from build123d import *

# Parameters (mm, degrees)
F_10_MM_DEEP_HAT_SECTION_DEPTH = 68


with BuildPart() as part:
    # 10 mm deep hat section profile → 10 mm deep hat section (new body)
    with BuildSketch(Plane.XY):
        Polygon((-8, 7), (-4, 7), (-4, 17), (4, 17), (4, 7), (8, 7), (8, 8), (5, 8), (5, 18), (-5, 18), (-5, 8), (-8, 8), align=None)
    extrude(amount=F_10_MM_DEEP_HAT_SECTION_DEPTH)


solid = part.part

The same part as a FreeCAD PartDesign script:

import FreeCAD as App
import Part
import Sketcher
from FreeCAD import Vector
Q = App.Units.Quantity

doc = App.newDocument("Part")
body = doc.addObject("PartDesign::Body", "Body")

# Sketch on XY plane
sketch1 = body.newObject("Sketcher::SketchObject", "Sketch")
sketch1.AttachmentSupport = (doc.getObject("XY_Plane"), [""])
sketch1.MapMode = "FlatFace"
sketch1.addGeometry(Part.LineSegment(Vector(-8, 7, 0), Vector(-4, 7, 0)), False)
sketch1.addGeometry(Part.LineSegment(Vector(-4, 7, 0), Vector(-4, 17, 0)), False)
sketch1.addGeometry(Part.LineSegment(Vector(-4, 17, 0), Vector(4, 17, 0)), False)
sketch1.addGeometry(Part.LineSegment(Vector(4, 17, 0), Vector(4, 7, 0)), False)
sketch1.addGeometry(Part.LineSegment(Vector(4, 7, 0), Vector(8, 7, 0)), False)
sketch1.addGeometry(Part.LineSegment(Vector(8, 7, 0), Vector(8, 8, 0)), False)
sketch1.addGeometry(Part.LineSegment(Vector(8, 8, 0), Vector(5, 8, 0)), False)
sketch1.addGeometry(Part.LineSegment(Vector(5, 8, 0), Vector(5, 18, 0)), False)
sketch1.addGeometry(Part.LineSegment(Vector(5, 18, 0), Vector(-5, 18, 0)), False)
sketch1.addGeometry(Part.LineSegment(Vector(-5, 18, 0), Vector(-5, 8, 0)), False)
sketch1.addGeometry(Part.LineSegment(Vector(-5, 8, 0), Vector(-8, 8, 0)), False)
sketch1.addGeometry(Part.LineSegment(Vector(-8, 8, 0), Vector(-8, 7, 0)), False)
sketch1.addConstraint(Sketcher.Constraint("Coincident", 0, 2, 1, 1))
sketch1.addConstraint(Sketcher.Constraint("Coincident", 1, 2, 2, 1))
sketch1.addConstraint(Sketcher.Constraint("Coincident", 2, 2, 3, 1))
sketch1.addConstraint(Sketcher.Constraint("Coincident", 3, 2, 4, 1))
sketch1.addConstraint(Sketcher.Constraint("Coincident", 4, 2, 5, 1))
sketch1.addConstraint(Sketcher.Constraint("Coincident", 5, 2, 6, 1))
sketch1.addConstraint(Sketcher.Constraint("Coincident", 6, 2, 7, 1))
sketch1.addConstraint(Sketcher.Constraint("Coincident", 7, 2, 8, 1))
sketch1.addConstraint(Sketcher.Constraint("Coincident", 8, 2, 9, 1))
sketch1.addConstraint(Sketcher.Constraint("Coincident", 9, 2, 10, 1))
sketch1.addConstraint(Sketcher.Constraint("Coincident", 10, 2, 11, 1))
sketch1.addConstraint(Sketcher.Constraint("Coincident", 11, 2, 0, 1))
sketch1.addConstraint(Sketcher.Constraint("Horizontal", 0))
sketch1.addConstraint(Sketcher.Constraint("Vertical", 1))
sketch1.addConstraint(Sketcher.Constraint("Horizontal", 2))
sketch1.addConstraint(Sketcher.Constraint("Vertical", 3))
sketch1.addConstraint(Sketcher.Constraint("Horizontal", 4))
sketch1.addConstraint(Sketcher.Constraint("Vertical", 5))
sketch1.addConstraint(Sketcher.Constraint("Horizontal", 6))
sketch1.addConstraint(Sketcher.Constraint("Vertical", 7))
sketch1.addConstraint(Sketcher.Constraint("Horizontal", 8))
sketch1.addConstraint(Sketcher.Constraint("Vertical", 9))
sketch1.addConstraint(Sketcher.Constraint("Horizontal", 10))
sketch1.addConstraint(Sketcher.Constraint("Vertical", 11))
sketch1.addConstraint(Sketcher.Constraint("Symmetric", 0, 2, 3, 2, -2))
sketch1.addConstraint(Sketcher.Constraint("Symmetric", 6, 2, 9, 2, -2))
sketch1.addConstraint(Sketcher.Constraint("Equal", 0, 4))
sketch1.addConstraint(Sketcher.Constraint("Equal", 8, 1))
sketch1.addConstraint(Sketcher.Constraint("Equal", 3, 7))
sketch1.addConstraint(Sketcher.Constraint("DistanceX", 0, 1, 0, 2, Q("4 mm")))
sketch1.addConstraint(Sketcher.Constraint("DistanceX", 2, 1, 2, 2, Q("8 mm")))
sketch1.addConstraint(Sketcher.Constraint("DistanceX", 6, 2, 6, 1, Q("3 mm")))
sketch1.addConstraint(Sketcher.Constraint("DistanceY", 5, 1, 5, 2, Q("1 mm")))
sketch1.addConstraint(Sketcher.Constraint("DistanceY", -1, 1, 0, 2, Q("7 mm")))
pad1 = body.newObject("PartDesign::Pad", "Pad")
pad1.Profile = sketch1
pad1.Length = 68

doc.recompute()
